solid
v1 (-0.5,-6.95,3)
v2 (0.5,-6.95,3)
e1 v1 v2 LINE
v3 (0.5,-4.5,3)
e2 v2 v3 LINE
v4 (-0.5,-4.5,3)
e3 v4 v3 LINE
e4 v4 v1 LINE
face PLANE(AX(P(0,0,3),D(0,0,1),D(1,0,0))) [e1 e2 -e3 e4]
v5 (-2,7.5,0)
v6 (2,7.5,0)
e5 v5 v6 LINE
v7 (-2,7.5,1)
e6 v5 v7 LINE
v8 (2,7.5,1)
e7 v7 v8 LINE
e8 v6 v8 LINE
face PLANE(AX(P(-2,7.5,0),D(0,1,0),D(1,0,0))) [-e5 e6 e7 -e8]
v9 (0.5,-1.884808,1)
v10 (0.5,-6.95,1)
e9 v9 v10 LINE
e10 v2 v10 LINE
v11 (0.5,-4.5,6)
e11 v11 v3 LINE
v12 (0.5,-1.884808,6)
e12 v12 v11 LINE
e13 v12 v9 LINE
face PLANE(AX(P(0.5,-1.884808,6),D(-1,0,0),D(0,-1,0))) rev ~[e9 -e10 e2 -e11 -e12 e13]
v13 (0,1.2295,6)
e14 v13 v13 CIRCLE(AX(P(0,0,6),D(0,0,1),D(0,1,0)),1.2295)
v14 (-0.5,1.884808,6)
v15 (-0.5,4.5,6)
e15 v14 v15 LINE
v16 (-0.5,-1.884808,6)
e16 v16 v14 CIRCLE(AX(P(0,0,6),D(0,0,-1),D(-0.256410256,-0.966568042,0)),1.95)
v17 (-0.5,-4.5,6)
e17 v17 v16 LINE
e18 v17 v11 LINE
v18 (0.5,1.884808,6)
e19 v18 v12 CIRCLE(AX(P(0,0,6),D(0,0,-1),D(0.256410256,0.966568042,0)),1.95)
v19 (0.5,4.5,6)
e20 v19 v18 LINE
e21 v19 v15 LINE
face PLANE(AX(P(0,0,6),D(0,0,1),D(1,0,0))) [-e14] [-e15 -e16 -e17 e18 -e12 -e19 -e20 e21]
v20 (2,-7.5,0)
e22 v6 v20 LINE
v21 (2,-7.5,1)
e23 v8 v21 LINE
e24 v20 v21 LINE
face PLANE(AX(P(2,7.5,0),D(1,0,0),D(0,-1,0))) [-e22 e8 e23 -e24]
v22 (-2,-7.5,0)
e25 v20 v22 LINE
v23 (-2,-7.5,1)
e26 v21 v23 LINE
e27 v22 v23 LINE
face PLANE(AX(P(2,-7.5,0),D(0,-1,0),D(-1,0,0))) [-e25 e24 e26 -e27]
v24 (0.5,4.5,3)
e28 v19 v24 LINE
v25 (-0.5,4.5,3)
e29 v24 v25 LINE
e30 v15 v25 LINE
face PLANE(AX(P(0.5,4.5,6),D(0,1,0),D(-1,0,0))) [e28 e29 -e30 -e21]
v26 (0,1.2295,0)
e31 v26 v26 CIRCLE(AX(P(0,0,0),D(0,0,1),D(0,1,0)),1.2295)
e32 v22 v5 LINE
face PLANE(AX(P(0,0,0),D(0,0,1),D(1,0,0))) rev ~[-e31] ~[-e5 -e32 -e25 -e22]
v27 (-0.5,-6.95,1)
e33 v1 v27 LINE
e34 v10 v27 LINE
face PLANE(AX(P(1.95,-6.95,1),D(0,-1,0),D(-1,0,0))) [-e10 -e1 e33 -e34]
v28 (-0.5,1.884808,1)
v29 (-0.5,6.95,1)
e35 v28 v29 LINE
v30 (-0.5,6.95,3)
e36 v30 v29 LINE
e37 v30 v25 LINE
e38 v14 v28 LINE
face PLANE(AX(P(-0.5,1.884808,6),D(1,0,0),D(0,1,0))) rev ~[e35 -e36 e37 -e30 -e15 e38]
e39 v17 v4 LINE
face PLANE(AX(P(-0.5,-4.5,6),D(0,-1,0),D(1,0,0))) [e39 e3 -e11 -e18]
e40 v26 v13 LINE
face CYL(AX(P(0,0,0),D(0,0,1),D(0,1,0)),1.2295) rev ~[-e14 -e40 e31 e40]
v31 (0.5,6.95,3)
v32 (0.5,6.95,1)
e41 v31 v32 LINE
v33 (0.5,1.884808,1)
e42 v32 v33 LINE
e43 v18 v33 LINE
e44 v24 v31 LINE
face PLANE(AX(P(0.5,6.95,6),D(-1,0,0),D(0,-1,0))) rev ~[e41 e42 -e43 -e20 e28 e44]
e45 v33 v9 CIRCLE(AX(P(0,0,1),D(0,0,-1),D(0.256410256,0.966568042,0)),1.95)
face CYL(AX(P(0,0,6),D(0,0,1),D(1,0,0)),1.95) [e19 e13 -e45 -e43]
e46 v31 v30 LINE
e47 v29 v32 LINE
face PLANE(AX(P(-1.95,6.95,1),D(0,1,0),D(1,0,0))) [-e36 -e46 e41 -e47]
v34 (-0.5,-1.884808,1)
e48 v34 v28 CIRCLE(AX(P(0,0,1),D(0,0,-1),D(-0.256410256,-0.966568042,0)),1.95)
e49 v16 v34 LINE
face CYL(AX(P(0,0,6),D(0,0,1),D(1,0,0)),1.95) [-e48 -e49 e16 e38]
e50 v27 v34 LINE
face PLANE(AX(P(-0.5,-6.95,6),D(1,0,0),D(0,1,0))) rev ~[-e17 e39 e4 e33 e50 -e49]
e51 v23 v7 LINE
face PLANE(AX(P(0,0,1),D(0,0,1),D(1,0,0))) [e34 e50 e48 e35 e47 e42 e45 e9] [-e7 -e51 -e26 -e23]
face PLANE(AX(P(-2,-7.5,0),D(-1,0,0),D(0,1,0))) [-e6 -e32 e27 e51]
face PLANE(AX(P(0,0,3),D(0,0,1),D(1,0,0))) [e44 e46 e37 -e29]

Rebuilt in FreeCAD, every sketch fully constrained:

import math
import FreeCAD as App
import Part
import Sketcher

V = App.Vector


def add_polygon(sketch, points):
    """Adds a closed chain of lines whose ends are joined by coincident constraints."""
    first, n = sketch.GeometryCount, len(points)
    for a, b in zip(points, points[1:] + points[:1]):
        sketch.addGeometry(Part.LineSegment(App.Vector(*a, 0), App.Vector(*b, 0)), False)
    for i in range(n):
        sketch.addConstraint(Sketcher.Constraint("Coincident", first + i, 2, first + (i + 1) % n, 1))

doc = App.newDocument("Part")
body = doc.addObject("PartDesign::Body", "Body")

# Sketch on XY plane
sketch1 = doc.addObject("Sketcher::SketchObject", "Sketch")
body.addObject(sketch1)
sketch1.AttachmentSupport = (doc.XY_Plane, [""])
sketch1.MapMode = "FlatFace"
add_polygon(sketch1, [(2, 7.5), (-2, 7.5), (-2, -7.5), (2, -7.5)])  # lines 0-3
sketch1.addConstraint(Sketcher.Constraint("Horizontal", 0))
sketch1.addConstraint(Sketcher.Constraint("Vertical", 1))
sketch1.addConstraint(Sketcher.Constraint("Horizontal", 2))
sketch1.addConstraint(Sketcher.Constraint("Vertical", 3))
sketch1.addConstraint(Sketcher.Constraint("Symmetric", 0, 2, 2, 2, -1, 1))
sketch1.addConstraint(Sketcher.Constraint("DistanceX", 0, 2, 0, 1, 4.0))
sketch1.addConstraint(Sketcher.Constraint("DistanceY", 1, 2, 1, 1, 15.0))
pad1 = doc.addObject("PartDesign::Pad", "Pad")
body.addObject(pad1)
pad1.Profile = sketch1
pad1.Length = 1

# Sketch on XY plane
sketch2 = doc.addObject("Sketcher::SketchObject", "Sketch001")
body.addObject(sketch2)
sketch2.AttachmentSupport = (doc.XY_Plane, [""])
sketch2.MapMode = "FlatFace"
sketch2.AttachmentOffset = App.Placement(V(0, 0, 1), App.Rotation())
add_polygon(sketch2, [(1.9, 7), (-1.9, 7), (-1.9, -7), (1.9, -7)])  # lines 0-3
sketch2.addConstraint(Sketcher.Constraint("Horizontal", 0))
sketch2.addConstraint(Sketcher.Constraint("Vertical", 1))
sketch2.addConstraint(Sketcher.Constraint("Horizontal", 2))
sketch2.addConstraint(Sketcher.Constraint("Vertical", 3))
sketch2.addConstraint(Sketcher.Constraint("Symmetric", 0, 2, 2, 2, -1, 1))
sketch2.addConstraint(Sketcher.Constraint("DistanceX", 0, 2, 0, 1, 3.9))
sketch2.addConstraint(Sketcher.Constraint("DistanceY", 1, 2, 1, 1, 13.9))
pad2 = doc.addObject("PartDesign::Pad", "Pad001")
body.addObject(pad2)
pad2.Profile = sketch2
pad2.Length = 5

# Sketch on XY plane
sketch3 = doc.addObject("Sketcher::SketchObject", "Sketch002")
body.addObject(sketch3)
sketch3.AttachmentSupport = (doc.XY_Plane, [""])
sketch3.MapMode = "FlatFace"
sketch3.AttachmentOffset = App.Placement(V(0, 0, 6), App.Rotation())
sketch3.addGeometry(Part.LineSegment(V(1.9, -7, 0), V(1.9, 0, 0)), False)
sketch3.addGeometry(Part.ArcOfCircle(Part.Circle(V(0, 0, 0), V(0, 0, 1), 1.9), math.radians(-75), math.radians(0)), False)
sketch3.addGeometry(Part.LineSegment(V(0.5, -1.9, 0), V(0.5, -7, 0)), False)
sketch3.addGeometry(Part.LineSegment(V(0.5, -7, 0), V(1.9, -7, 0)), False)
sketch3.addGeometry(Part.ArcOfCircle(Part.Circle(V(0, 0, 0), V(0, 0, 1), 1.9), math.radians(0), math.radians(75)), False)
sketch3.addGeometry(Part.LineSegment(V(1.9, 0, 0), V(1.9, 7, 0)), False)
sketch3.addGeometry(Part.LineSegment(V(1.9, 7, 0), V(0.5, 7, 0)), False)
sketch3.addGeometry(Part.LineSegment(V(0.5, 7, 0), V(0.5, 1.9, 0)), False)
sketch3.addGeometry(Part.ArcOfCircle(Part.Circle(V(0, 0, 0), V(0, 0, 1), 1.9), math.radians(105), math.radians(180)), False)
sketch3.addGeometry(Part.LineSegment(V(-0.5, 1.9, 0), V(-0.5, 7, 0)), False)
sketch3.addGeometry(Part.LineSegment(V(-0.5, 7, 0), V(-1.9, 7, 0)), False)
sketch3.addGeometry(Part.LineSegment(V(-1.9, 7, 0), V(-1.9, 0, 0)), False)
sketch3.addGeometry(Part.LineSegment(V(-0.5, -7, 0), V(-0.5, -1.9, 0)), False)
sketch3.addGeometry(Part.ArcOfCircle(Part.Circle(V(0, 0, 0), V(0, 0, 1), 1.9), math.radians(180), math.radians(255)), False)
sketch3.addGeometry(Part.LineSegment(V(-1.9, 0, 0), V(-1.9, -7, 0)), False)
sketch3.addGeometry(Part.LineSegment(V(-1.9, -7, 0), V(-0.5, -7, 0)), False)
sketch3.addConstraint(Sketcher.Constraint("Tangent", 0, 2, 1, 2))
sketch3.addConstraint(Sketcher.Constraint("Coincident", 1, 1, 2, 1))
sketch3.addConstraint(Sketcher.Constraint("Coincident", 2, 2, 3, 1))
sketch3.addConstraint(Sketcher.Constraint("Coincident", 3, 2, 0, 1))
sketch3.addConstraint(Sketcher.Constraint("Tangent", 4, 1, 5, 1))
sketch3.addConstraint(Sketcher.Constraint("Coincident", 5, 2, 6, 1))
sketch3.addConstraint(Sketcher.Constraint("Coincident", 6, 2, 7, 1))
sketch3.addConstraint(Sketcher.Constraint("Coincident", 7, 2, 4, 2))
sketch3.addConstraint(Sketcher.Constraint("Coincident", 8, 1, 9, 1))
sketch3.addConstraint(Sketcher.Constraint("Coincident", 9, 2, 10, 1))
sketch3.addConstraint(Sketcher.Constraint("Coincident", 10, 2, 11, 1))
sketch3.addConstraint(Sketcher.Constraint("Tangent", 11, 2, 8, 2))
sketch3.addConstraint(Sketcher.Constraint("Coincident", 12, 2, 13, 2))
sketch3.addConstraint(Sketcher.Constraint("Tangent", 13, 1, 14, 1))
sketch3.addConstraint(Sketcher.Constraint("Coincident", 14, 2, 15, 1))
sketch3.addConstraint(Sketcher.Constraint("Coincident", 15, 2, 12, 1))
sketch3.addConstraint(Sketcher.Constraint("Vertical", 0))
sketch3.addConstraint(Sketcher.Constraint("Vertical", 2))
sketch3.addConstraint(Sketcher.Constraint("Horizontal", 3))
sketch3.addConstraint(Sketcher.Constraint("Vertical", 5))
sketch3.addConstraint(Sketcher.Constraint("Horizontal", 6))
sketch3.addConstraint(Sketcher.Constraint("Vertical", 7))
sketch3.addConstraint(Sketcher.Constraint("Vertical", 9))
sketch3.addConstraint(Sketcher.Constraint("Horizontal", 10))
sketch3.addConstraint(Sketcher.Constraint("Vertical", 11))
sketch3.addConstraint(Sketcher.Constraint("Vertical", 12))
sketch3.addConstraint(Sketcher.Constraint("Vertical", 14))
sketch3.addConstraint(Sketcher.Constraint("Horizontal", 15))
sketch3.addConstraint(Sketcher.Constraint("Coincident", 1, 3, -1, 1))
sketch3.addConstraint(Sketcher.Constraint("Coincident", 4, 3, -1, 1))
sketch3.addConstraint(Sketcher.Constraint("Coincident", 8, 3, -1, 1))
sketch3.addConstraint(Sketcher.Constraint("Coincident", 13, 3, -1, 1))
sketch3.addConstraint(Sketcher.Constraint("Equal", 1, 4))
sketch3.addConstraint(Sketcher.Constraint("Equal", 4, 8))
sketch3.addConstraint(Sketcher.Constraint("Equal", 8, 13))
sketch3.addConstraint(Sketcher.Constraint("Symmetric", 2, 2, 9, 2, -1, 1))
sketch3.addConstraint(Sketcher.Constraint("Symmetric", 6, 2, 15, 2, -1, 1))
sketch3.addConstraint(Sketcher.Constraint("Symmetric", 6, 2, 9, 2, -2))
sketch3.addConstraint(Sketcher.Constraint("Radius", 1, 1.95))
sketch3.addConstraint(Sketcher.Constraint("DistanceX", 8, 1, 7, 2, 1.0))
sketch3.addConstraint(Sketcher.Constraint("DistanceY", 0, 1, 0, 2, 6.95))
pocket1 = doc.addObject("PartDesign::Pocket", "Pocket")
body.addObject(pocket1)
pocket1.Profile = sketch3
pocket1.Length = 5

# Sketch on XY plane
sketch4 = doc.addObject("Sketcher::SketchObject", "Sketch003")
body.addObject(sketch4)
sketch4.AttachmentSupport = (doc.XY_Plane, [""])
sketch4.MapMode = "FlatFace"
sketch4.AttachmentOffset = App.Placement(V(0, 0, 6), App.Rotation())
add_polygon(sketch4, [(0.5, -4.5), (-0.5, -4.5), (-0.5, -7), (0.5, -7)])  # lines 0-3
add_polygon(sketch4, [(-0.5, 7), (-0.5, 4.5), (0.5, 4.5), (0.5, 7)])  # lines 4-7
sketch4.addConstraint(Sketcher.Constraint("Horizontal", 0))
sketch4.addConstraint(Sketcher.Constraint("Vertical", 1))
sketch4.addConstraint(Sketcher.Constraint("Horizontal", 2))
sketch4.addConstraint(Sketcher.Constraint("Vertical", 3))
sketch4.addConstraint(Sketcher.Constraint("Vertical", 4))
sketch4.addConstraint(Sketcher.Constraint("Horizontal", 5))
sketch4.addConstraint(Sketcher.Constraint("Vertical", 6))
sketch4.addConstraint(Sketcher.Constraint("Horizontal", 7))
sketch4.addConstraint(Sketcher.Constraint("Symmetric", 3, 2, 4, 2, -1, 1))
sketch4.addConstraint(Sketcher.Constraint("Symmetric", 1, 2, 6, 2, -1, 1))
sketch4.addConstraint(Sketcher.Constraint("Vertical", 1, 2, 4, 2))
sketch4.addConstraint(Sketcher.Constraint("DistanceX", 0, 2, 0, 1, 1.0))
sketch4.addConstraint(Sketcher.Constraint("DistanceY", 0, 2, 4, 2, 9.0))
sketch4.addConstraint(Sketcher.Constraint("DistanceY", 1, 2, 1, 1, 2.45))
pocket2 = doc.addObject("PartDesign::Pocket", "Pocket001")
body.addObject(pocket2)
pocket2.Profile = sketch4
pocket2.Length = 3

# Sketch on XY plane
sketch5 = doc.addObject("Sketcher::SketchObject", "Sketch004")
body.addObject(sketch5)
sketch5.AttachmentSupport = (doc.XY_Plane, [""])
sketch5.MapMode = "FlatFace"
sketch5.addGeometry(Part.Circle(V(0, 0, 0), V(0, 0, 1), 1.2), False)
sketch5.addConstraint(Sketcher.Constraint("Coincident", 0, 3, -1, 1))
sketch5.addConstraint(Sketcher.Constraint("Diameter", 0, 2.459))
doc.recompute()
hole = doc.addObject("PartDesign::Hole", "Hole")
body.addObject(hole)
hole.Profile = sketch5
hole.ThreadType = "None"
hole.Diameter = 2.459
hole.DepthType = "ThroughAll"
hole.Reversed = True

doc.recompute()
